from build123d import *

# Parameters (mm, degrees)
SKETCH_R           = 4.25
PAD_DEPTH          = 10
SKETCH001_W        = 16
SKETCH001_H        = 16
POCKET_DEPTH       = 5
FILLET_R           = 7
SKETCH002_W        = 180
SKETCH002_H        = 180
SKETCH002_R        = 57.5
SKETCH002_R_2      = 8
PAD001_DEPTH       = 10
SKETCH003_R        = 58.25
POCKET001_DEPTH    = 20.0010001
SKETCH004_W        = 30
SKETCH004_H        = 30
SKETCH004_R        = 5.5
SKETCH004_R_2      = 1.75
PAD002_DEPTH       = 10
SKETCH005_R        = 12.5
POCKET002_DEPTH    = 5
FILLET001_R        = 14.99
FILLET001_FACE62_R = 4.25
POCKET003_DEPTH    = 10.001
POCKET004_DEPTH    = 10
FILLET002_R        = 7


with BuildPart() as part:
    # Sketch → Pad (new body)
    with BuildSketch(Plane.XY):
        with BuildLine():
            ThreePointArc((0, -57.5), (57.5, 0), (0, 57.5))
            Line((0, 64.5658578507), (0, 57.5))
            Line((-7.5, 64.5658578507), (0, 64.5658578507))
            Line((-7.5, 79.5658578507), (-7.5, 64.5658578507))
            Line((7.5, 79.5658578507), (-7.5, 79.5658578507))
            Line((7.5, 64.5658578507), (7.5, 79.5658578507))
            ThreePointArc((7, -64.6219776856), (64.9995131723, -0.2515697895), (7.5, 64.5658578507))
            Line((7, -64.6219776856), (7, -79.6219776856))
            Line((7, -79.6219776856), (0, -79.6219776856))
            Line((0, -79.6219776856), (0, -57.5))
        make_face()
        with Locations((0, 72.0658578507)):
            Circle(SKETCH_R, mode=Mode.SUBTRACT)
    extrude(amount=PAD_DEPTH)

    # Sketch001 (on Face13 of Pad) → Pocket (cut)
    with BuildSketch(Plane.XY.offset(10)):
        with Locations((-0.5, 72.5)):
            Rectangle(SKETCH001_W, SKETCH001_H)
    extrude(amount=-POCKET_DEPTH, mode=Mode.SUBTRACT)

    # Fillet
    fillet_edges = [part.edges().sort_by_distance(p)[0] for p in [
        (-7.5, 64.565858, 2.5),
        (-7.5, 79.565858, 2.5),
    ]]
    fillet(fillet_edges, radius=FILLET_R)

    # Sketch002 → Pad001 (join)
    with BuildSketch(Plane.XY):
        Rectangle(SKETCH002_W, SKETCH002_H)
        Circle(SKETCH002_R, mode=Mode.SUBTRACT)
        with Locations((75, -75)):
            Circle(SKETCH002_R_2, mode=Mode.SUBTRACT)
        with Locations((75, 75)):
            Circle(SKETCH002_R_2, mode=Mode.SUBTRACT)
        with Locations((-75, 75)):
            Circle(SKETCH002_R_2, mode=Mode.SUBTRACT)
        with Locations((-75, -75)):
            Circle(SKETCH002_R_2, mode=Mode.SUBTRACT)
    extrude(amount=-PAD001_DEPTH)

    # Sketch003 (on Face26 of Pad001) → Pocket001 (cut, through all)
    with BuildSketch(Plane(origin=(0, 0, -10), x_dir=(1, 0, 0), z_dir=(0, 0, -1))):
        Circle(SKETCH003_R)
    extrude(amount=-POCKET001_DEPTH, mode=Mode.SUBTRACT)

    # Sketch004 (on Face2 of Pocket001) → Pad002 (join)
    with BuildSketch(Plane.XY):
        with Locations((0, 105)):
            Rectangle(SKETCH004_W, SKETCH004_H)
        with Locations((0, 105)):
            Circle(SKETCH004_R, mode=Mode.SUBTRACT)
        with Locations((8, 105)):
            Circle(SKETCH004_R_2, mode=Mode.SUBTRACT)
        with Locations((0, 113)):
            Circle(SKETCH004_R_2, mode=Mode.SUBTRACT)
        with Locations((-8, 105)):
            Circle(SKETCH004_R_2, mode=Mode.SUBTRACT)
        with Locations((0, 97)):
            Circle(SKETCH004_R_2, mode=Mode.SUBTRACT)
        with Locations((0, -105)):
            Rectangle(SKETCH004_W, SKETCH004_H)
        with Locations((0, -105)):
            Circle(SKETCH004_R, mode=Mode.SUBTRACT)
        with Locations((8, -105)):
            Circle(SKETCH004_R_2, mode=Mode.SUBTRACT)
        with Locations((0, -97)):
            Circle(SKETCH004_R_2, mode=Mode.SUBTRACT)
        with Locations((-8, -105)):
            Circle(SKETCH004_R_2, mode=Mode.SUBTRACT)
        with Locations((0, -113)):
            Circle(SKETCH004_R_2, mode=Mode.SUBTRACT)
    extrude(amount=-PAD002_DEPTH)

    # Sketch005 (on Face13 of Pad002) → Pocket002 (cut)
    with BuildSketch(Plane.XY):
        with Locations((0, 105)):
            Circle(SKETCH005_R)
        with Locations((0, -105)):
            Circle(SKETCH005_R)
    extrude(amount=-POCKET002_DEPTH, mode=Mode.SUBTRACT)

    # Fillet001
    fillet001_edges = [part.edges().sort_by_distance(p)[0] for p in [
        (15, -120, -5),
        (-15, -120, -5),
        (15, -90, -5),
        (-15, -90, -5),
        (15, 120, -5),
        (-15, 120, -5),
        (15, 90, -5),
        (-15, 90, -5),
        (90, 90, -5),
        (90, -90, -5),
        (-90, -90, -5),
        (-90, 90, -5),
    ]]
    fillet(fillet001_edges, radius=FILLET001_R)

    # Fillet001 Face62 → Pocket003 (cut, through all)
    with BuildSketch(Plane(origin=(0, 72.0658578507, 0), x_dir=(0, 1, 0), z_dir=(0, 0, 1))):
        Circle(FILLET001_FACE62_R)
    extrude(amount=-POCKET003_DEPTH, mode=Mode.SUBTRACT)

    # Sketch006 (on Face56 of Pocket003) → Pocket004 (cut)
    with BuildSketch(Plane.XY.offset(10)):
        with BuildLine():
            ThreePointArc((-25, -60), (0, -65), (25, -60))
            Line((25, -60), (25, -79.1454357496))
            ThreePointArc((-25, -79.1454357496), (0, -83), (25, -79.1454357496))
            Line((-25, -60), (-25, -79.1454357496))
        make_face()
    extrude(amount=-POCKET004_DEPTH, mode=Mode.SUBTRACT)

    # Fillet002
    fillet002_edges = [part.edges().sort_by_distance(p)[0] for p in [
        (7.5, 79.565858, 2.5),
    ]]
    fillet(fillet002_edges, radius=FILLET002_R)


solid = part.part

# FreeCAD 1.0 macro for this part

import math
import FreeCAD as App
import Part
import Sketcher
from FreeCAD import Vector
Q = App.Units.Quantity


def edges_at(feature, points):
    """Names of the edges that pass closest to the given points."""
    edges = feature.Shape.Edges
    near = lambda p: min(range(len(edges)), key=lambda i: edges[i].distToShape(Part.Vertex(*p))[0])
    return sorted({f"Edge{near(p) + 1}" for p in points})


def add_polygon(sketch, points):
    """Adds a closed chain of lines whose ends are joined by coincident constraints."""
    first, n = sketch.GeometryCount, len(points)
    for a, b in zip(points, points[1:] + points[:1]):
        sketch.addGeometry(Part.LineSegment(App.Vector(*a, 0), App.Vector(*b, 0)), False)
    for i in range(n):
        sketch.addConstraint(Sketcher.Constraint("Coincident", first + i, 2, first + (i + 1) % n, 1))

doc = App.newDocument("Part")
body = doc.addObject("PartDesign::Body", "Body")

# Sketch on XY plane
sketch1 = body.newObject("Sketcher::SketchObject", "Sketch")
sketch1.AttachmentSupport = (doc.getObject("XY_Plane"), [""])
sketch1.MapMode = "FlatFace"
sketch1.addGeometry(Part.ArcOfCircle(Part.Circle(Vector(0, 0, 0), Vector(0, 0, 1), 57.5), math.radians(-90), math.radians(90)), False)
sketch1.addGeometry(Part.LineSegment(Vector(0, -57.5, 0), Vector(0, -79.621978, 0)), False)
sketch1.addGeometry(Part.LineSegment(Vector(0, -79.621978, 0), Vector(7, -79.621978, 0)), False)
sketch1.addGeometry(Part.LineSegment(Vector(7, -79.621978, 0), Vector(7, -64.621978, 0)), False)
sketch1.addGeometry(Part.ArcOfCircle(Part.Circle(Vector(0, 0, 0), Vector(0, 0, 1), 65), math.radians(-83.817696), math.radians(83.37419)), False)
sketch1.addGeometry(Part.LineSegment(Vector(7.5, 64.565858, 0), Vector(7.5, 79.565858, 0)), False)
sketch1.addGeometry(Part.LineSegment(Vector(7.5, 79.565858, 0), Vector(-7.5, 79.565858, 0)), False)
sketch1.addGeometry(Part.LineSegment(Vector(-7.5, 79.565858, 0), Vector(-7.5, 64.565858, 0)), False)
sketch1.addGeometry(Part.LineSegment(Vector(-7.5, 64.565858, 0), Vector(0, 64.565858, 0)), False)
sketch1.addGeometry(Part.LineSegment(Vector(0, 64.565858, 0), Vector(0, 57.5, 0)), False)
sketch1.addGeometry(Part.Circle(Vector(0, 72.065858, 0), Vector(0, 0, 1), 4.25), False)
sketch1.addConstraint(Sketcher.Constraint("Coincident", 0, 1, 1, 1))
sketch1.addConstraint(Sketcher.Constraint("Coincident", 1, 2, 2, 1))
sketch1.addConstraint(Sketcher.Constraint("Coincident", 2, 2, 3, 1))
sketch1.addConstraint(Sketcher.Constraint("Coincident", 3, 2, 4, 1))
sketch1.addConstraint(Sketcher.Constraint("Coincident", 4, 2, 5, 1))
sketch1.addConstraint(Sketcher.Constraint("Coincident", 5, 2, 6, 1))
sketch1.addConstraint(Sketcher.Constraint("Coincident", 6, 2, 7, 1))
sketch1.addConstraint(Sketcher.Constraint("Coincident", 7, 2, 8, 1))
sketch1.addConstraint(Sketcher.Constraint("Coincident", 8, 2, 9, 1))
sketch1.addConstraint(Sketcher.Constraint("Coincident", 9, 2, 0, 2))
sketch1.addConstraint(Sketcher.Constraint("Vertical", 1))
sketch1.addConstraint(Sketcher.Constraint("Horizontal", 2))
sketch1.addConstraint(Sketcher.Constraint("Vertical", 3))
sketch1.addConstraint(Sketcher.Constraint("Vertical", 5))
sketch1.addConstraint(Sketcher.Constraint("Horizontal", 6))
sketch1.addConstraint(Sketcher.Constraint("Vertical", 7))
sketch1.addConstraint(Sketcher.Constraint("Horizontal", 8))
sketch1.addConstraint(Sketcher.Constraint("Vertical", 9))
sketch1.addConstraint(Sketcher.Constraint("Coincident", 0, 3, -1, 1))
sketch1.addConstraint(Sketcher.Constraint("Coincident", 4, 3, -1, 1))
sketch1.addConstraint(Sketcher.Constraint("Symmetric", 4, 2, 7, 2, -2))
sketch1.addConstraint(Sketcher.Constraint("PointOnObject", 10, 3, -2))
sketch1.addConstraint(Sketcher.Constraint("PointOnObject", 0, 1, -2))
sketch1.addConstraint(Sketcher.Constraint("PointOnObject", 8, 2, -2))
sketch1.addConstraint(Sketcher.Constraint("Equal", 6, 3))
sketch1.addConstraint(Sketcher.Constraint("Equal", 3, 5))
sketch1.addConstraint(Sketcher.Constraint("Radius", 4, Q("65 mm")))
sketch1.addConstraint(Sketcher.Constraint("Diameter", 10, Q("8.5 mm")))
sketch1.addConstraint(Sketcher.Constraint("Radius", 0, Q("57.5 mm")))
sketch1.addConstraint(Sketcher.Constraint("DistanceX", 2, 1, 2, 2, Q("7 mm")))
sketch1.addConstraint(Sketcher.Constraint("DistanceX", 6, 2, 6, 1, Q("15 mm")))
sketch1.addConstraint(Sketcher.Constraint("DistanceY", 4, 2, 10, 3, Q("7.5 mm")))
pad1 = body.newObject("PartDesign::Pad", "Pad")
pad1.Profile = sketch1
pad1.Length = 10

# Sketch on XY plane
sketch2 = body.newObject("Sketcher::SketchObject", "Sketch001")
sketch2.AttachmentSupport = (doc.getObject("XY_Plane"), [""])
sketch2.MapMode = "FlatFace"
sketch2.AttachmentOffset = App.Placement(Vector(0, 0, 10), App.Rotation())
add_polygon(sketch2, [(-8.5, 80.5), (-8.5, 64.5), (7.5, 64.5), (7.5, 80.5)])  # lines 0-3
sketch2.addConstraint(Sketcher.Constraint("Vertical", 0))
sketch2.addConstraint(Sketcher.Constraint("Horizontal", 1))
sketch2.addConstraint(Sketcher.Constraint("Vertical", 2))
sketch2.addConstraint(Sketcher.Constraint("Horizontal", 3))
sketch2.addConstraint(Sketcher.Constraint("Equal", 3, 0))
sketch2.addConstraint(Sketcher.Constraint("DistanceX", 1, 1, 1, 2, Q("16 mm")))
sketch2.addConstraint(Sketcher.Constraint("DistanceX", 0, 2, -1, 1, Q("8.5 mm")))
sketch2.addConstraint(Sketcher.Constraint("DistanceY", -1, 1, 0, 2, Q("64.5 mm")))
pocket1 = body.newObject("PartDesign::Pocket", "Pocket")
pocket1.Profile = sketch2
pocket1.Length = 5
doc.recompute()

fillet = body.newObject("PartDesign::Fillet", "Fillet")
fillet.Base = (pocket1, edges_at(pocket1, [(-7.5, 64.566, 2.5), (-7.5, 79.566, 2.5)]))
fillet.Radius = 7

# Sketch on XY plane
sketch3 = body.newObject("Sketcher::SketchObject", "Sketch002")
sketch3.AttachmentSupport = (doc.getObject("XY_Plane"), [""])
sketch3.MapMode = "FlatFace"
add_polygon(sketch3, [(-90, 90), (-90, -90), (90, -90), (90, 90)])  # lines 0-3
sketch3.addGeometry(Part.Circle(Vector(-75, -75, 0), Vector(0, 0, 1), 8), False)  # 4
sketch3.addGeometry(Part.Circle(Vector(75, -75, 0), Vector(0, 0, 1), 8), False)  # 5
sketch3.addGeometry(Part.Circle(Vector(-75, 75, 0), Vector(0, 0, 1), 8), False)  # 6
sketch3.addGeometry(Part.Circle(Vector(0, 0, 0), Vector(0, 0, 1), 57.5), False)  # 7
sketch3.addGeometry(Part.Circle(Vector(75, 75, 0), Vector(0, 0, 1), 8), False)  # 8
sketch3.addConstraint(Sketcher.Constraint("Vertical", 0))
sketch3.addConstraint(Sketcher.Constraint("Horizontal", 1))
sketch3.addConstraint(Sketcher.Constraint("Vertical", 2))
sketch3.addConstraint(Sketcher.Constraint("Horizontal", 3))
sketch3.addConstraint(Sketcher.Constraint("Coincident", 7, 3, -1, 1))
sketch3.addConstraint(Sketcher.Constraint("Equal", 4, 5))
sketch3.addConstraint(Sketcher.Constraint("Equal", 5, 6))
sketch3.addConstraint(Sketcher.Constraint("Equal", 6, 8))
sketch3.addConstraint(Sketcher.Constraint("Symmetric", 5, 3, 6, 3, -1, 1))
sketch3.addConstraint(Sketcher.Constraint("Symmetric", 4, 3, 8, 3, -1, 1))
sketch3.addConstraint(Sketcher.Constraint("Symmetric", 0, 2, 2, 2, -1, 1))
sketch3.addConstraint(Sketcher.Constraint("Symmetric", 4, 3, 5, 3, -2))
sketch3.addConstraint(Sketcher.Constraint("Equal", 3, 0))
sketch3.addConstraint(Sketcher.Constraint("Diameter", 4, Q("16 mm")))
sketch3.addConstraint(Sketcher.Constraint("Diameter", 7, Q("115 mm")))
sketch3.addConstraint(Sketcher.Constraint("DistanceX", 1, 1, 1, 2, Q("180 mm")))
sketch3.addConstraint(Sketcher.Constraint("DistanceX", 4, 3, -1, 1, Q("75 mm")))
sketch3.addConstraint(Sketcher.Constraint("DistanceY", 4, 3, -1, 1, Q("75 mm")))
pad2 = body.newObject("PartDesign::Pad", "Pad001")
pad2.Profile = sketch3
pad2.Length = 10
pad2.Reversed = True

# Sketch on XY plane
sketch4 = body.newObject("Sketcher::SketchObject", "Sketch003")
sketch4.AttachmentSupport = (doc.getObject("XY_Plane"), [""])
sketch4.MapMode = "FlatFace"
sketch4.AttachmentOffset = App.Placement(Vector(0, 0, -10), App.Rotation())
sketch4.addGeometry(Part.Circle(Vector(0, 0, 0), Vector(0, 0, 1), 58.25), False)
sketch4.addConstraint(Sketcher.Constraint("Coincident", 0, 3, -1, 1))
sketch4.addConstraint(Sketcher.Constraint("Diameter", 0, Q("116.5 mm")))
pocket2 = body.newObject("PartDesign::Pocket", "Pocket001")
pocket2.Profile = sketch4
pocket2.Type = "ThroughAll"
pocket2.Reversed = True

# Sketch on XY plane
sketch5 = body.newObject("Sketcher::SketchObject", "Sketch004")
sketch5.AttachmentSupport = (doc.getObject("XY_Plane"), [""])
sketch5.MapMode = "FlatFace"
add_polygon(sketch5, [(-15, 120), (-15, 90), (15, 90), (15, 120)])  # lines 0-3
sketch5.addGeometry(Part.Circle(Vector(0, 97, 0), Vector(0, 0, 1), 1.75), False)  # 4
sketch5.addGeometry(Part.Circle(Vector(-8, 105, 0), Vector(0, 0, 1), 1.75), False)  # 5
sketch5.addGeometry(Part.Circle(Vector(0, 105, 0), Vector(0, 0, 1), 5.5), False)  # 6
sketch5.addGeometry(Part.Circle(Vector(8, 105, 0), Vector(0, 0, 1), 1.75), False)  # 7
sketch5.addGeometry(Part.Circle(Vector(0, 113, 0), Vector(0, 0, 1), 1.75), False)  # 8
add_polygon(sketch5, [(-15, -90), (-15, -120), (15, -120), (15, -90)])  # lines 9-12
sketch5.addGeometry(Part.Circle(Vector(0, -113, 0), Vector(0, 0, 1), 1.75), False)  # 13
sketch5.addGeometry(Part.Circle(Vector(-8, -105, 0), Vector(0, 0, 1), 1.75), False)  # 14
sketch5.addGeometry(Part.Circle(Vector(0, -105, 0), Vector(0, 0, 1), 5.5), False)  # 15
sketch5.addGeometry(Part.Circle(Vector(8, -105, 0), Vector(0, 0, 1), 1.75), False)  # 16
sketch5.addGeometry(Part.Circle(Vector(0, -97, 0), Vector(0, 0, 1), 1.75), False)  # 17
sketch5.addConstraint(Sketcher.Constraint("Vertical", 0))
sketch5.addConstraint(Sketcher.Constraint("Horizontal", 1))
sketch5.addConstraint(Sketcher.Constraint("Vertical", 2))
sketch5.addConstraint(Sketcher.Constraint("Horizontal", 3))
sketch5.addConstraint(Sketcher.Constraint("Vertical", 9))
sketch5.addConstraint(Sketcher.Constraint("Horizontal", 10))
sketch5.addConstraint(Sketcher.Constraint("Vertical", 11))
sketch5.addConstraint(Sketcher.Constraint("Horizontal", 12))
sketch5.addConstraint(Sketcher.Constraint("Equal", 4, 5))
sketch5.addConstraint(Sketcher.Constraint("Equal", 5, 7))
sketch5.addConstraint(Sketcher.Constraint("Equal", 7, 8))
sketch5.addConstraint(Sketcher.Constraint("Equal", 8, 13))
sketch5.addConstraint(Sketcher.Constraint("Equal", 13, 14))
sketch5.addConstraint(Sketcher.Constraint("Equal", 6, 15))
sketch5.addConstraint(Sketcher.Constraint("Equal", 14, 16))
sketch5.addConstraint(Sketcher.Constraint("Equal", 16, 17))
sketch5.addConstraint(Sketcher.Constraint("Symmetric", 8, 3, 13, 3, -1, 1))
sketch5.addConstraint(Sketcher.Constraint("Symmetric", 7, 3, 14, 3, -1, 1))
sketch5.addConstraint(Sketcher.Constraint("Symmetric", 6, 3, 15, 3, -1, 1))
sketch5.addConstraint(Sketcher.Constraint("Symmetric", 5, 3, 16, 3, -1, 1))
sketch5.addConstraint(Sketcher.Constraint("Symmetric", 4, 3, 17, 3, -1, 1))
sketch5.addConstraint(Sketcher.Constraint("Symmetric", 2, 2, 9, 2, -1, 1))
sketch5.addConstraint(Sketcher.Constraint("Symmetric", 0, 2, 11, 2, -1, 1))
sketch5.addConstraint(Sketcher.Constraint("Symmetric", 5, 3, 7, 3, -2))
sketch5.addConstraint(Sketcher.Constraint("PointOnObject", 4, 3, -2))
sketch5.addConstraint(Sketcher.Constraint("PointOnObject", 6, 3, -2))
sketch5.addConstraint(Sketcher.Constraint("PointOnObject", 8, 3, -2))
sketch5.addConstraint(Sketcher.Constraint("Horizontal", 5, 3, 6, 3))
sketch5.addConstraint(Sketcher.Constraint("Vertical", 3, 2, 9, 2))
sketch5.addConstraint(Sketcher.Constraint("Equal", 12, 0))
sketch5.addConstraint(Sketcher.Constraint("Diameter", 6, Q("11 mm")))
sketch5.addConstraint(Sketcher.Constraint("Diameter", 4, Q("3.5 mm")))
sketch5.addConstraint(Sketcher.Constraint("DistanceX", 1, 1, 1, 2, Q("30 mm")))
sketch5.addConstraint(Sketcher.Constraint("DistanceY", -1, 1, 4, 3, Q("97 mm")))
sketch5.addConstraint(Sketcher.Constraint("DistanceX", 5, 3, -1, 1, Q("8 mm")))
sketch5.addConstraint(Sketcher.Constraint("DistanceY", -1, 1, 5, 3, Q("105 mm")))
sketch5.addConstraint(Sketcher.Constraint("DistanceY", -1, 1, 8, 3, Q("113 mm")))
sketch5.addConstraint(Sketcher.Constraint("DistanceY", -1, 1, 0, 2, Q("90 mm")))
pad3 = body.newObject("PartDesign::Pad", "Pad002")
pad3.Profile = sketch5
pad3.Length = 10
pad3.Reversed = True

# Sketch on XY plane
sketch6 = body.newObject("Sketcher::SketchObject", "Sketch005")
sketch6.AttachmentSupport = (doc.getObject("XY_Plane"), [""])
sketch6.MapMode = "FlatFace"
sketch6.addGeometry(Part.Circle(Vector(0, 105, 0), Vector(0, 0, 1), 12.5), False)
sketch6.addGeometry(Part.Circle(Vector(0, -105, 0), Vector(0, 0, 1), 12.5), False)
sketch6.addConstraint(Sketcher.Constraint("Equal", 0, 1))
sketch6.addConstraint(Sketcher.Constraint("Symmetric", 0, 3, 1, 3, -1, 1))
sketch6.addConstraint(Sketcher.Constraint("PointOnObject", 0, 3, -2))
sketch6.addConstraint(Sketcher.Constraint("Diameter", 0, Q("25 mm")))
sketch6.addConstraint(Sketcher.Constraint("DistanceY", -1, 1, 0, 3, Q("105 mm")))
pocket3 = body.newObject("PartDesign::Pocket", "Pocket002")
pocket3.Profile = sketch6
pocket3.Length = 5
doc.recompute()

fillet2 = body.newObject("PartDesign::Fillet", "Fillet001")
fillet2.Base = (pocket3, edges_at(pocket3, [
    (15, -120, -5),
    (-15, -120, -5),
    (15, -90, -5),
    (-15, -90, -5),
    (15, 120, -5),
    (-15, 120, -5),
    (15, 90, -5),
    (-15, 90, -5),
    (90, 90, -5),
    (90, -90, -5),
    (-90, -90, -5),
    (-90, 90, -5),
]))
fillet2.Radius = 14.99

# Sketch on XY plane
sketch7 = body.newObject("Sketcher::SketchObject", "Sketch006")
sketch7.AttachmentSupport = (doc.getObject("XY_Plane"), [""])
sketch7.MapMode = "FlatFace"
sketch7.addGeometry(Part.Circle(Vector(0, 72.065858, 0), Vector(0, 0, 1), 4.25), False)
sketch7.addConstraint(Sketcher.Constraint("PointOnObject", 0, 3, -2))
sketch7.addConstraint(Sketcher.Constraint("Diameter", 0, Q("8.5 mm")))
sketch7.addConstraint(Sketcher.Constraint("DistanceY", -1, 1, 0, 3, Q("72.065858 mm")))
pocket4 = body.newObject("PartDesign::Pocket", "Pocket003")
pocket4.Profile = sketch7
pocket4.Type = "ThroughAll"

# Sketch on XY plane
sketch8 = body.newObject("Sketcher::SketchObject", "Sketch007")
sketch8.AttachmentSupport = (doc.getObject("XY_Plane"), [""])
sketch8.MapMode = "FlatFace"
sketch8.AttachmentOffset = App.Placement(Vector(0, 0, 10), App.Rotation())
sketch8.addGeometry(Part.ArcOfCircle(Part.Circle(Vector(0, 0, 0), Vector(0, 0, 1), 65), math.radians(-112.619865), math.radians(-67.380135)), False)
sketch8.addGeometry(Part.LineSegment(Vector(-25, -60, 0), Vector(-25, -79.145436, 0)), False)
sketch8.addGeometry(Part.ArcOfCircle(Part.Circle(Vector(0, 0, 0), Vector(0, 0, 1), 83), math.radians(-107.529982), math.radians(-72.470018)), False)
sketch8.addGeometry(Part.LineSegment(Vector(25, -79.145436, 0), Vector(25, -60, 0)), False)
sketch8.addConstraint(Sketcher.Constraint("Coincident", 0, 1, 1, 1))
sketch8.addConstraint(Sketcher.Constraint("Coincident", 1, 2, 2, 1))
sketch8.addConstraint(Sketcher.Constraint("Coincident", 2, 2, 3, 1))
sketch8.addConstraint(Sketcher.Constraint("Coincident", 3, 2, 0, 2))
sketch8.addConstraint(Sketcher.Constraint("Vertical", 1))
sketch8.addConstraint(Sketcher.Constraint("Vertical", 3))
sketch8.addConstraint(Sketcher.Constraint("Coincident", 0, 3, -1, 1))
sketch8.addConstraint(Sketcher.Constraint("Coincident", 2, 3, -1, 1))
sketch8.addConstraint(Sketcher.Constraint("Horizontal", 1, 2, 2, 2))
sketch8.addConstraint(Sketcher.Constraint("Radius", 0, Q("65 mm")))
sketch8.addConstraint(Sketcher.Constraint("Radius", 2, Q("83 mm")))
sketch8.addConstraint(Sketcher.Constraint("DistanceX", 0, 1, -1, 1, Q("25 mm")))
pocket5 = body.newObject("PartDesign::Pocket", "Pocket004")
pocket5.Profile = sketch8
pocket5.Length = 10
doc.recompute()

fillet3 = body.newObject("PartDesign::Fillet", "Fillet002")
fillet3.Base = (pocket5, edges_at(pocket5, [(7.5, 79.566, 2.5)]))
fillet3.Radius = 7

doc.recompute()
